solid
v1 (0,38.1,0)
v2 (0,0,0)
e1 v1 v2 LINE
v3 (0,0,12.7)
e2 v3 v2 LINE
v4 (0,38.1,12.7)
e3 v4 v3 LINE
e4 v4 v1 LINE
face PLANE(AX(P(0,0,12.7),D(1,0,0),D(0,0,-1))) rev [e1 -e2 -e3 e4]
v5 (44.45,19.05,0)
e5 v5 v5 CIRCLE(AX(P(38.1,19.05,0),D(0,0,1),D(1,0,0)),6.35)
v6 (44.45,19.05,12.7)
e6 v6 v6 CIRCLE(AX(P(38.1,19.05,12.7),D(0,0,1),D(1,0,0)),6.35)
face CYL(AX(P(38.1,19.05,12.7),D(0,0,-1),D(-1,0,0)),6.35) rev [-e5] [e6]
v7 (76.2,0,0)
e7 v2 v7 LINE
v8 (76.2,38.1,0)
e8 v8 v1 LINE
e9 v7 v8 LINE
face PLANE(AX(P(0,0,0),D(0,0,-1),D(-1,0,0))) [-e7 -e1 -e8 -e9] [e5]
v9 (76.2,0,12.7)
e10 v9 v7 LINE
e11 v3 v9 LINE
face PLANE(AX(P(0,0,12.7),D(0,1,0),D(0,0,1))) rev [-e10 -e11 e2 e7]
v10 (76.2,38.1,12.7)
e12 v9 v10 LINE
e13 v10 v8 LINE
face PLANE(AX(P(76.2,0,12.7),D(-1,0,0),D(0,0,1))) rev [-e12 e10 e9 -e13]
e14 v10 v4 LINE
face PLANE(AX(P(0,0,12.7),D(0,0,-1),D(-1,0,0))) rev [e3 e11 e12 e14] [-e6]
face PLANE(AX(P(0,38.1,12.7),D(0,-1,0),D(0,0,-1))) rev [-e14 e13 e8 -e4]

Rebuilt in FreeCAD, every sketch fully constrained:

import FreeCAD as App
import Part
import Sketcher

V = App.Vector
Q = App.Units.Quantity

doc = App.newDocument("Part")
body = doc.addObject("PartDesign::Body", "Body")

sketch1 = doc.addObject("Sketcher::SketchObject", "Sketch")
body.addObject(sketch1)
sketch1.AttachmentSupport = (doc.XY_Plane, [""])
sketch1.MapMode = "FlatFace"
sketch1.addGeometry(Part.LineSegment(V(0, 38.1, 0), V(0, 0, 0)), False)
sketch1.addGeometry(Part.LineSegment(V(0, 0, 0), V(76.2, 0, 0)), False)
sketch1.addGeometry(Part.LineSegment(V(76.2, 0, 0), V(76.2, 38.1, 0)), False)
sketch1.addGeometry(Part.LineSegment(V(76.2, 38.1, 0), V(0, 38.1, 0)), False)
sketch1.addGeometry(Part.Circle(V(38.1, 19.05, 0), V(0, 0, 1), 6.35), False)
sketch1.addConstraint(Sketcher.Constraint("Coincident", 0, 2, 1, 1))
sketch1.addConstraint(Sketcher.Constraint("Coincident", 1, 2, 2, 1))
sketch1.addConstraint(Sketcher.Constraint("Coincident", 2, 2, 3, 1))
sketch1.addConstraint(Sketcher.Constraint("Coincident", 3, 2, 0, 1))
sketch1.addConstraint(Sketcher.Constraint("Vertical", 0))
sketch1.addConstraint(Sketcher.Constraint("Horizontal", 1))
sketch1.addConstraint(Sketcher.Constraint("Vertical", 2))
sketch1.addConstraint(Sketcher.Constraint("Horizontal", 3))
sketch1.addConstraint(Sketcher.Constraint("Coincident", 0, 2, -1, 1))
sketch1.addConstraint(Sketcher.Constraint("Diameter", 4, Q("0.5 in")))
sketch1.addConstraint(Sketcher.Constraint("DistanceX", 1, 1, 1, 2, Q("3 in")))
sketch1.addConstraint(Sketcher.Constraint("DistanceY", 0, 2, 0, 1, Q("1.5 in")))
sketch1.addConstraint(Sketcher.Constraint("DistanceX", -1, 1, 4, 3, Q("1.5 in")))
sketch1.addConstraint(Sketcher.Constraint("DistanceY", -1, 1, 4, 3, Q("0.75 in")))
pad1 = doc.addObject("PartDesign::Pad", "Pad")
body.addObject(pad1)
pad1.Profile = sketch1
pad1.Length = Q("0.5 in")

doc.recompute()
